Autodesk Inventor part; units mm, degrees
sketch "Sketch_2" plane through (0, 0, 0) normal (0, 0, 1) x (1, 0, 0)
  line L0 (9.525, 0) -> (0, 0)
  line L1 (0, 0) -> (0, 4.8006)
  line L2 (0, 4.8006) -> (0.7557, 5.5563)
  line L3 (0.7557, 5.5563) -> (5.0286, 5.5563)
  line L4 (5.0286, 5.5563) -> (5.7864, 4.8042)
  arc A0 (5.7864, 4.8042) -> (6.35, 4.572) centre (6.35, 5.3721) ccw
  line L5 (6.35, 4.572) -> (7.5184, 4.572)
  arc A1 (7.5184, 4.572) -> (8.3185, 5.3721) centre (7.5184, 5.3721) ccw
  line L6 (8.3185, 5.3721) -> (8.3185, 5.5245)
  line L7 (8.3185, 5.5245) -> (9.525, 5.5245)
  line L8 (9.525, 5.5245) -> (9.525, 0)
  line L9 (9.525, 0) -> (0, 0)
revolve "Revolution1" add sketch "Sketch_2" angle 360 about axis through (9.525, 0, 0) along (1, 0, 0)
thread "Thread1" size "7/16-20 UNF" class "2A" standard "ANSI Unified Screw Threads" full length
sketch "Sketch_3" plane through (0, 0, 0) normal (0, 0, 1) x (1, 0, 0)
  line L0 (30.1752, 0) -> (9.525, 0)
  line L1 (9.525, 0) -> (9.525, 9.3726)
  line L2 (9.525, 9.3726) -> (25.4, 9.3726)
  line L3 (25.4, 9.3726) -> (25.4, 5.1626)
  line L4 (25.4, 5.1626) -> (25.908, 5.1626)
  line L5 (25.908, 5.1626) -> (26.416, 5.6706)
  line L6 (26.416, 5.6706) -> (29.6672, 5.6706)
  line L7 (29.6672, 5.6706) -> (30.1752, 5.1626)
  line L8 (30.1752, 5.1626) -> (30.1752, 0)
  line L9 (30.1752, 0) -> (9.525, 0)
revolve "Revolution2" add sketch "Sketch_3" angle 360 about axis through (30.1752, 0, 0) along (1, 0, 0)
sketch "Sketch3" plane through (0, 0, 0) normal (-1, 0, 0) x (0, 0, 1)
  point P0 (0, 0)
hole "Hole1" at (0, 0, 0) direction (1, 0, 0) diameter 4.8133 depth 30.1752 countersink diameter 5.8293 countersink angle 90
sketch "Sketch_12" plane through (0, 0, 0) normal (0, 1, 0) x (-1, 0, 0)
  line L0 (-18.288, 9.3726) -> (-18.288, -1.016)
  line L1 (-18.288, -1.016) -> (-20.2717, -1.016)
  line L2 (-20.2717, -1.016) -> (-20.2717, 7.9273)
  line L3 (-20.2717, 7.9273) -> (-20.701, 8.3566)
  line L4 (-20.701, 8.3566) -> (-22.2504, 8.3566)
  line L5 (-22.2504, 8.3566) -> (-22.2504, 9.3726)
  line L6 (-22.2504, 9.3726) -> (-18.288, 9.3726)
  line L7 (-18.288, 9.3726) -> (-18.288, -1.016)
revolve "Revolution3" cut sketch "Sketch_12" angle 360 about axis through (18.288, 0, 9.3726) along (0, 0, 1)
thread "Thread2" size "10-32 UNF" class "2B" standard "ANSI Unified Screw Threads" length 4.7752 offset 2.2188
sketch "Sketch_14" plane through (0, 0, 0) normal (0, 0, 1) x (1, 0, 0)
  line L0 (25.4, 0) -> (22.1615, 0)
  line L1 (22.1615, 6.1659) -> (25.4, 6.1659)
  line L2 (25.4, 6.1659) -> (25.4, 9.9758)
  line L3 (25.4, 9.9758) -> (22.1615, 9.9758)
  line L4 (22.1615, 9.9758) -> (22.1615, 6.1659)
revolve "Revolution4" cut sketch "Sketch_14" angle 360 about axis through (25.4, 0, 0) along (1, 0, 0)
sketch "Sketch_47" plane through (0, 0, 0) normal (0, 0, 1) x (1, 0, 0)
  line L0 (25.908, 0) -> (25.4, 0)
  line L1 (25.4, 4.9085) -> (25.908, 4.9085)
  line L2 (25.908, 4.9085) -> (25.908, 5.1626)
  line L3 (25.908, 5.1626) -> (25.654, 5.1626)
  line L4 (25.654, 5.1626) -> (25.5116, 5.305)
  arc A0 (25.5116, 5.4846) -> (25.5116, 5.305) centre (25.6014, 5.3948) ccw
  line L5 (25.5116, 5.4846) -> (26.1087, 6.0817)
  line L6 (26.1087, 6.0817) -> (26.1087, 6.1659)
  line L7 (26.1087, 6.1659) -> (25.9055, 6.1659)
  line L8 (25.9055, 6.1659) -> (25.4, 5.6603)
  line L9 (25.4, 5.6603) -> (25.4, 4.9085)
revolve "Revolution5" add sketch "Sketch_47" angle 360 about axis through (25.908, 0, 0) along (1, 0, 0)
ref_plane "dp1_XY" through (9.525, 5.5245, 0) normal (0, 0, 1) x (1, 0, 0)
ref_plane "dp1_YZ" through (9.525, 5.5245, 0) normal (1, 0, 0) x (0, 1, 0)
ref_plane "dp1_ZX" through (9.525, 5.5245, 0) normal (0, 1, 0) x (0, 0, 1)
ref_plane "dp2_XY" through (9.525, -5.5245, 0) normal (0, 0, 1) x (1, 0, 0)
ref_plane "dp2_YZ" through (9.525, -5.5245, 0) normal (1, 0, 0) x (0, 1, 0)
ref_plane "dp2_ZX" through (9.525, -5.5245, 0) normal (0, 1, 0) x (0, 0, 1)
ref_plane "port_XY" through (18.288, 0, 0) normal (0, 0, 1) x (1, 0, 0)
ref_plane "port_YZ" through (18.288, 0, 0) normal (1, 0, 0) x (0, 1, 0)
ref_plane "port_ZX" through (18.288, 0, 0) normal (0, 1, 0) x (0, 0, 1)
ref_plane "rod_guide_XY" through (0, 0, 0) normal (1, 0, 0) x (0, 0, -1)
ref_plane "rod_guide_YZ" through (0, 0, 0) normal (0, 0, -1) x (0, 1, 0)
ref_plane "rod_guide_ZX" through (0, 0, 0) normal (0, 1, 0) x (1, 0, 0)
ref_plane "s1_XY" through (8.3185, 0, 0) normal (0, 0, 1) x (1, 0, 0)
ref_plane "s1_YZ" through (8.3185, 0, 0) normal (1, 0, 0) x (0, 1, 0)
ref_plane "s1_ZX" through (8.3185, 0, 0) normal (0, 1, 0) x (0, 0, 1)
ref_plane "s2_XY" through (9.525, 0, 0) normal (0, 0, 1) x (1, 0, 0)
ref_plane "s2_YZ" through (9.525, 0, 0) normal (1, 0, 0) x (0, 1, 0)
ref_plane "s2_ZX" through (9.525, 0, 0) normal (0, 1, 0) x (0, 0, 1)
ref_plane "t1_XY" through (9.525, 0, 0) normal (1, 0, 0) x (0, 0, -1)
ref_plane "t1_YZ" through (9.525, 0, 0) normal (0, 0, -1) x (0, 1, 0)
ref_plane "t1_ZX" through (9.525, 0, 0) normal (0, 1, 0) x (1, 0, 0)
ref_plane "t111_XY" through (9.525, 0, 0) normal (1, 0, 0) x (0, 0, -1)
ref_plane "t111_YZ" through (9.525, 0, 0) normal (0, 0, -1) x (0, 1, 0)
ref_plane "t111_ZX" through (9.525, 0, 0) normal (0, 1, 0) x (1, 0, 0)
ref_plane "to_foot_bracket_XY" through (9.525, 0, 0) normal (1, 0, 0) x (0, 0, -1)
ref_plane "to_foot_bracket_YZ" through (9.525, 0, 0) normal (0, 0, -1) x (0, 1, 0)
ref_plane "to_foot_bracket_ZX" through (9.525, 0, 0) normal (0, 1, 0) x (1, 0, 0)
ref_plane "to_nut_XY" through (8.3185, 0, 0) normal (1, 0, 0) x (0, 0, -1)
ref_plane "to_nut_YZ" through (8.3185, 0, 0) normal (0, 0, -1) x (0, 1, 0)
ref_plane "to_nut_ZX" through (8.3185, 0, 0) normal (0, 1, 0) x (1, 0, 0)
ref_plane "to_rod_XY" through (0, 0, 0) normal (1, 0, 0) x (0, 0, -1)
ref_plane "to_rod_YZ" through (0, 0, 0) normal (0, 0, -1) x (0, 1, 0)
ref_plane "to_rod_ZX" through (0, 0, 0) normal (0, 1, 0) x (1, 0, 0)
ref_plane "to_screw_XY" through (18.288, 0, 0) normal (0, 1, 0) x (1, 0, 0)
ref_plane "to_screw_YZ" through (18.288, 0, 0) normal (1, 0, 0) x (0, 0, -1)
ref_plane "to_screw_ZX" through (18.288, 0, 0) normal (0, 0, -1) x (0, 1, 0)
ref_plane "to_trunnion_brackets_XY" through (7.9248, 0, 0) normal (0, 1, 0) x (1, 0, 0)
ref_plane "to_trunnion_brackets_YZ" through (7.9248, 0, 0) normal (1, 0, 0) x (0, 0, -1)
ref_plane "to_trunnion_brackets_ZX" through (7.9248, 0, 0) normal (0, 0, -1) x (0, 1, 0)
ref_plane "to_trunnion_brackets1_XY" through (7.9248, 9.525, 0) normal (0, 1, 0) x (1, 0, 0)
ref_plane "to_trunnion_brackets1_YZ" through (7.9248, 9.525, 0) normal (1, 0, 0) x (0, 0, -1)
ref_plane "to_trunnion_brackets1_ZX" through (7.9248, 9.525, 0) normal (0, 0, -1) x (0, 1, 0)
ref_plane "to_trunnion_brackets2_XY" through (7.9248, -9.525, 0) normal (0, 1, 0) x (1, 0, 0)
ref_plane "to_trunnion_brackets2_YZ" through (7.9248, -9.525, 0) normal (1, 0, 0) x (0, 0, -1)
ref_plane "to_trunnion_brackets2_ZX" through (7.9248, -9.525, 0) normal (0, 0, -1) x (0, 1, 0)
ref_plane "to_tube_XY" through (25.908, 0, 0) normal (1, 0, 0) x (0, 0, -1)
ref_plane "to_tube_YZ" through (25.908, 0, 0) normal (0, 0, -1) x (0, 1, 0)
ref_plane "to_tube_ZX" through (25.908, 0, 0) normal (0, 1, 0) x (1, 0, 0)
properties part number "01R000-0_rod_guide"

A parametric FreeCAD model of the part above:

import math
import FreeCAD as App
import Part
import Sketcher

V = App.Vector
Q = App.Units.Quantity

doc = App.newDocument("Part")
body = doc.addObject("PartDesign::Body", "Body")

# Sketch on XY plane
sketch1 = doc.addObject("Sketcher::SketchObject", "Sketch")
body.addObject(sketch1)
sketch1.AttachmentSupport = (doc.XY_Plane, [""])
sketch1.MapMode = "FlatFace"
sketch1.addGeometry(Part.LineSegment(V(0, 0, 0), V(9.53, 0, 0)), False)
sketch1.addGeometry(Part.LineSegment(V(9.53, 0, 0), V(9.53, 5.52, 0)), False)
sketch1.addGeometry(Part.LineSegment(V(9.53, 5.52, 0), V(8.32, 5.52, 0)), False)
sketch1.addGeometry(Part.LineSegment(V(8.32, 5.52, 0), V(8.32, 5.37, 0)), False)
sketch1.addGeometry(Part.ArcOfCircle(Part.Circle(V(7.52, 5.37, 0), V(0, 0, 1), 0.8), math.radians(-90), math.radians(0)), False)
sketch1.addGeometry(Part.LineSegment(V(7.52, 4.57, 0), V(6.35, 4.57, 0)), False)
sketch1.addGeometry(Part.ArcOfCircle(Part.Circle(V(6.35, 5.37, 0), V(0, 0, 1), 0.8), math.radians(-135), math.radians(-90)), False)
sketch1.addGeometry(Part.LineSegment(V(5.79, 4.8, 0), V(5.03, 5.56, 0)), False)
sketch1.addGeometry(Part.LineSegment(V(5.03, 5.56, 0), V(0.76, 5.56, 0)), False)
sketch1.addGeometry(Part.LineSegment(V(0.76, 5.56, 0), V(0, 4.8, 0)), False)
sketch1.addGeometry(Part.LineSegment(V(0, 4.8, 0), V(0, 0, 0)), False)
sketch1.addConstraint(Sketcher.Constraint("Coincident", 0, 2, 1, 1))
sketch1.addConstraint(Sketcher.Constraint("Coincident", 1, 2, 2, 1))
sketch1.addConstraint(Sketcher.Constraint("Coincident", 2, 2, 3, 1))
sketch1.addConstraint(Sketcher.Constraint("Tangent", 3, 2, 4, 2))
sketch1.addConstraint(Sketcher.Constraint("Tangent", 4, 1, 5, 1))
sketch1.addConstraint(Sketcher.Constraint("Tangent", 5, 2, 6, 2))
sketch1.addConstraint(Sketcher.Constraint("Tangent", 6, 1, 7, 1))
sketch1.addConstraint(Sketcher.Constraint("Coincident", 7, 2, 8, 1))
sketch1.addConstraint(Sketcher.Constraint("Coincident", 8, 2, 9, 1))
sketch1.addConstraint(Sketcher.Constraint("Coincident", 9, 2, 10, 1))
sketch1.addConstraint(Sketcher.Constraint("Coincident", 10, 2, 0, 1))
sketch1.addConstraint(Sketcher.Constraint("Horizontal", 0))
sketch1.addConstraint(Sketcher.Constraint("Vertical", 1))
sketch1.addConstraint(Sketcher.Constraint("Horizontal", 2))
sketch1.addConstraint(Sketcher.Constraint("Vertical", 3))
sketch1.addConstraint(Sketcher.Constraint("Horizontal", 5))
sketch1.addConstraint(Sketcher.Constraint("Horizontal", 8))
sketch1.addConstraint(Sketcher.Constraint("Vertical", 10))
sketch1.addConstraint(Sketcher.Constraint("Coincident", 10, 2, -1, 1))
sketch1.addConstraint(Sketcher.Constraint("Equal", 4, 6))
sketch1.addConstraint(Sketcher.Constraint("Angle", 9, Q("-135 deg")))
sketch1.addConstraint(Sketcher.Constraint("Radius", 4, Q("0.0315 in")))
sketch1.addConstraint(Sketcher.Constraint("DistanceX", 0, 1, 0, 2, Q("0.375 in")))
sketch1.addConstraint(Sketcher.Constraint("DistanceX", 5, 2, 5, 1, Q("0.046 in")))
sketch1.addConstraint(Sketcher.Constraint("DistanceY", 3, 2, 3, 1, Q("0.006 in")))
sketch1.addConstraint(Sketcher.Constraint("DistanceY", 10, 2, 10, 1, Q("0.189 in")))
sketch1.addConstraint(Sketcher.Constraint("DistanceX", -1, 1, 6, 3, Q("0.25 in")))
sketch1.addConstraint(Sketcher.Constraint("DistanceY", -1, 1, 4, 1, Q("0.18 in")))
sketch1.addConstraint(Sketcher.Constraint("DistanceY", -1, 1, 7, 2, Q("0.218752 in")))
sketch1.addConstraint(Sketcher.Constraint("DistanceX", 8, 2, 8, 1, Q("4.273 mm")))
revolution = doc.addObject("PartDesign::Revolution", "Revolution")
body.addObject(revolution)
revolution.Profile = sketch1
revolution.ReferenceAxis = (sketch1, ["H_Axis"])
revolution.Angle = 360

# Sketch on XY plane
sketch2 = doc.addObject("Sketcher::SketchObject", "Sketch001")
body.addObject(sketch2)
sketch2.AttachmentSupport = (doc.XY_Plane, [""])
sketch2.MapMode = "FlatFace"
sketch2.addGeometry(Part.LineSegment(V(9.5, 0, 0), V(30.2, 0, 0)), False)
sketch2.addGeometry(Part.LineSegment(V(30.2, 0, 0), V(30.2, 5.2, 0)), False)
sketch2.addGeometry(Part.LineSegment(V(30.2, 5.2, 0), V(29.7, 5.7, 0)), False)
sketch2.addGeometry(Part.LineSegment(V(29.7, 5.7, 0), V(26.4, 5.7, 0)), False)
sketch2.addGeometry(Part.LineSegment(V(26.4, 5.7, 0), V(25.9, 5.2, 0)), False)
sketch2.addGeometry(Part.LineSegment(V(25.9, 5.2, 0), V(25.4, 5.2, 0)), False)
sketch2.addGeometry(Part.LineSegment(V(25.4, 5.2, 0), V(25.4, 9.4, 0)), False)
sketch2.addGeometry(Part.LineSegment(V(25.4, 9.4, 0), V(9.5, 9.4, 0)), False)
sketch2.addGeometry(Part.LineSegment(V(9.5, 9.4, 0), V(9.5, 0, 0)), False)
sketch2.addConstraint(Sketcher.Constraint("Coincident", 0, 2, 1, 1))
sketch2.addConstraint(Sketcher.Constraint("Coincident", 1, 2, 2, 1))
sketch2.addConstraint(Sketcher.Constraint("Coincident", 2, 2, 3, 1))
sketch2.addConstraint(Sketcher.Constraint("Coincident", 3, 2, 4, 1))
sketch2.addConstraint(Sketcher.Constraint("Coincident", 4, 2, 5, 1))
sketch2.addConstraint(Sketcher.Constraint("Coincident", 5, 2, 6, 1))
sketch2.addConstraint(Sketcher.Constraint("Coincident", 6, 2, 7, 1))
sketch2.addConstraint(Sketcher.Constraint("Coincident", 7, 2, 8, 1))
sketch2.addConstraint(Sketcher.Constraint("Coincident", 8, 2, 0, 1))
sketch2.addConstraint(Sketcher.Constraint("Horizontal", 0))
sketch2.addConstraint(Sketcher.Constraint("Vertical", 1))
sketch2.addConstraint(Sketcher.Constraint("Horizontal", 3))
sketch2.addConstraint(Sketcher.Constraint("Horizontal", 5))
sketch2.addConstraint(Sketcher.Constraint("Vertical", 6))
sketch2.addConstraint(Sketcher.Constraint("Horizontal", 7))
sketch2.addConstraint(Sketcher.Constraint("Vertical", 8))
sketch2.addConstraint(Sketcher.Constraint("PointOnObject", 0, 2, -1))
sketch2.addConstraint(Sketcher.Constraint("Perpendicular", 2, 4))
sketch2.addConstraint(Sketcher.Constraint("Horizontal", 1, 2, 4, 2))
sketch2.addConstraint(Sketcher.Constraint("Equal", 2, 4))
sketch2.addConstraint(Sketcher.Constraint("DistanceX", -1, 1, 5, 2, Q("1 in")))
sketch2.addConstraint(Sketcher.Constraint("DistanceX", 5, 2, 5, 1, Q("0.02 in")))
sketch2.addConstraint(Sketcher.Constraint("DistanceX", 0, 1, 0, 2, Q("0.813 in")))
sketch2.addConstraint(Sketcher.Constraint("DistanceX", 3, 2, 3, 1, Q("0.128 in")))
sketch2.addConstraint(Sketcher.Constraint("DistanceX", 7, 2, 7, 1, Q("0.625 in")))
sketch2.addConstraint(Sketcher.Constraint("DistanceY", 8, 2, 8, 1, Q("0.369 in")))
sketch2.addConstraint(Sketcher.Constraint("DistanceY", 1, 1, 1, 2, Q("5.1626 mm")))
revolution2 = doc.addObject("PartDesign::Revolution", "Revolution001")
body.addObject(revolution2)
revolution2.Profile = sketch2
revolution2.ReferenceAxis = (sketch2, ["H_Axis"])
revolution2.Angle = 360

# Sketch on YZ plane
sketch3 = doc.addObject("Sketcher::SketchObject", "Sketch002")
body.addObject(sketch3)
sketch3.AttachmentSupport = (doc.YZ_Plane, [""])
sketch3.MapMode = "FlatFace"
sketch3.addGeometry(Part.Circle(V(0, 0, 0), V(0, 0, 1), 2.4), False)
sketch3.addConstraint(Sketcher.Constraint("Coincident", 0, 3, -1, 1))
sketch3.addConstraint(Sketcher.Constraint("Diameter", 0, Q("0.1895 in")))
doc.recompute()
hole = doc.addObject("PartDesign::Hole", "Hole")
body.addObject(hole)
hole.Profile = sketch3
hole.ThreadType = "None"
hole.Diameter = Q("0.1895 in")
hole.DepthType = "Dimension"
hole.Depth = Q("1.188 in")
hole.DrillPoint = "Flat"
hole.HoleCutType = "Countersink"
hole.HoleCutDiameter = Q("0.2295 in")
hole.HoleCutCountersinkAngle = 90
hole.Reversed = True

# Sketch on XZ plane
sketch4 = doc.addObject("Sketcher::SketchObject", "Sketch003")
body.addObject(sketch4)
sketch4.AttachmentSupport = (doc.XZ_Plane, [""])
sketch4.MapMode = "FlatFace"
sketch4.addGeometry(Part.LineSegment(V(18.3, -1, 0), V(18.3, 9.4, 0)), False)
sketch4.addGeometry(Part.LineSegment(V(18.3, 9.4, 0), V(22.3, 9.4, 0)), False)
sketch4.addGeometry(Part.LineSegment(V(22.3, 9.4, 0), V(22.3, 8.4, 0)), False)
sketch4.addGeometry(Part.LineSegment(V(22.3, 8.4, 0), V(20.7, 8.4, 0)), False)
sketch4.addGeometry(Part.LineSegment(V(20.7, 8.4, 0), V(20.3, 7.9, 0)), False)
sketch4.addGeometry(Part.LineSegment(V(20.3, 7.9, 0), V(20.3, -1, 0)), False)
sketch4.addGeometry(Part.LineSegment(V(20.3, -1, 0), V(18.3, -1, 0)), False)
sketch4.addGeometry(Part.LineSegment(V(18.3, -1, 0), V(18.3, 9.4, 0)), True)  # axis
sketch4.addConstraint(Sketcher.Constraint("Coincident", 0, 2, 1, 1))
sketch4.addConstraint(Sketcher.Constraint("Coincident", 1, 2, 2, 1))
sketch4.addConstraint(Sketcher.Constraint("Coincident", 2, 2, 3, 1))
sketch4.addConstraint(Sketcher.Constraint("Coincident", 3, 2, 4, 1))
sketch4.addConstraint(Sketcher.Constraint("Coincident", 4, 2, 5, 1))
sketch4.addConstraint(Sketcher.Constraint("Coincident", 5, 2, 6, 1))
sketch4.addConstraint(Sketcher.Constraint("Coincident", 6, 2, 0, 1))
sketch4.addConstraint(Sketcher.Constraint("Vertical", 0))
sketch4.addConstraint(Sketcher.Constraint("Horizontal", 1))
sketch4.addConstraint(Sketcher.Constraint("Vertical", 2))
sketch4.addConstraint(Sketcher.Constraint("Horizontal", 3))
sketch4.addConstraint(Sketcher.Constraint("Vertical", 5))
sketch4.addConstraint(Sketcher.Constraint("Horizontal", 6))
sketch4.addConstraint(Sketcher.Constraint("Vertical", 7))
sketch4.addConstraint(Sketcher.Constraint("Coincident", 7, 1, 6, 2))
sketch4.addConstraint(Sketcher.Constraint("Horizontal", 1, 2, 7, 2))
sketch4.addConstraint(Sketcher.Constraint("Angle", 4, Q("-135 deg")))
sketch4.addConstraint(Sketcher.Constraint("DistanceY", 2, 2, 2, 1, Q("0.04 in")))
sketch4.addConstraint(Sketcher.Constraint("DistanceX", 1, 1, 1, 2, Q("0.156 in")))
sketch4.addConstraint(Sketcher.Constraint("DistanceX", 3, 2, 3, 1, Q("0.061 in")))
sketch4.addConstraint(Sketcher.Constraint("DistanceY", 0, 1, 0, 2, Q("0.409 in")))
sketch4.addConstraint(Sketcher.Constraint("DistanceX", -1, 1, 0, 2, Q("0.72 in")))
sketch4.addConstraint(Sketcher.Constraint("DistanceY", 5, 2, -1, 1, Q("0.04 in")))
sketch4.addConstraint(Sketcher.Constraint("DistanceX", 6, 2, 6, 1, Q("0.0781 in")))
groove = doc.addObject("PartDesign::Groove", "Groove")
body.addObject(groove)
groove.Profile = sketch4
groove.ReferenceAxis = (sketch4, ["Axis0"])
groove.Angle = 360

# Sketch on XY plane
sketch5 = doc.addObject("Sketcher::SketchObject", "Sketch004")
body.addObject(sketch5)
sketch5.AttachmentSupport = (doc.XY_Plane, [""])
sketch5.MapMode = "FlatFace"
sketch5.addGeometry(Part.LineSegment(V(22.2, 10, 0), V(22.2, 6.2, 0)), False)
sketch5.addGeometry(Part.LineSegment(V(22.2, 6.2, 0), V(25.4, 6.2, 0)), False)
sketch5.addGeometry(Part.LineSegment(V(25.4, 6.2, 0), V(25.4, 10, 0)), False)
sketch5.addGeometry(Part.LineSegment(V(25.4, 10, 0), V(22.2, 10, 0)), False)
sketch5.addConstraint(Sketcher.Constraint("Coincident", 0, 2, 1, 1))
sketch5.addConstraint(Sketcher.Constraint("Coincident", 1, 2, 2, 1))
sketch5.addConstraint(Sketcher.Constraint("Coincident", 2, 2, 3, 1))
sketch5.addConstraint(Sketcher.Constraint("Coincident", 3, 2, 0, 1))
sketch5.addConstraint(Sketcher.Constraint("Vertical", 0))
sketch5.addConstraint(Sketcher.Constraint("Horizontal", 1))
sketch5.addConstraint(Sketcher.Constraint("Vertical", 2))
sketch5.addConstraint(Sketcher.Constraint("Horizontal", 3))
sketch5.addConstraint(Sketcher.Constraint("DistanceX", -1, 1, 1, 2, Q("1 in")))
sketch5.addConstraint(Sketcher.Constraint("DistanceY", 0, 2, 0, 1, Q("0.15 in")))
sketch5.addConstraint(Sketcher.Constraint("DistanceX", 1, 1, 1, 2, Q("0.1275 in")))
sketch5.addConstraint(Sketcher.Constraint("DistanceY", -1, 1, 0, 2, Q("6.166 mm")))
groove2 = doc.addObject("PartDesign::Groove", "Groove001")
body.addObject(groove2)
groove2.Profile = sketch5
groove2.ReferenceAxis = (sketch5, ["H_Axis"])
groove2.Angle = 360

# Sketch on XY plane
sketch6 = doc.addObject("Sketcher::SketchObject", "Sketch005")
body.addObject(sketch6)
sketch6.AttachmentSupport = (doc.XY_Plane, [""])
sketch6.MapMode = "FlatFace"
sketch6.addGeometry(Part.LineSegment(V(25.4, 5.66, 0), V(25.4, 4.91, 0)), False)
sketch6.addGeometry(Part.LineSegment(V(25.4, 4.91, 0), V(25.91, 4.91, 0)), False)
sketch6.addGeometry(Part.LineSegment(V(25.91, 4.91, 0), V(25.91, 5.16, 0)), False)
sketch6.addGeometry(Part.LineSegment(V(25.91, 5.16, 0), V(25.65, 5.16, 0)), False)
sketch6.addGeometry(Part.LineSegment(V(25.65, 5.16, 0), V(25.51, 5.3, 0)), False)
sketch6.addGeometry(Part.ArcOfCircle(Part.Circle(V(25.6, 5.39, 0), V(0, 0, 1), 0.13), math.radians(135), math.radians(225)), False)
sketch6.addGeometry(Part.LineSegment(V(25.51, 5.48, 0), V(26.11, 6.08, 0)), False)
sketch6.addGeometry(Part.LineSegment(V(26.11, 6.08, 0), V(26.11, 6.17, 0)), False)
sketch6.addGeometry(Part.LineSegment(V(26.11, 6.17, 0), V(25.91, 6.17, 0)), False)
sketch6.addGeometry(Part.LineSegment(V(25.91, 6.17, 0), V(25.4, 5.66, 0)), False)
sketch6.addConstraint(Sketcher.Constraint("Coincident", 0, 2, 1, 1))
sketch6.addConstraint(Sketcher.Constraint("Coincident", 1, 2, 2, 1))
sketch6.addConstraint(Sketcher.Constraint("Coincident", 2, 2, 3, 1))
sketch6.addConstraint(Sketcher.Constraint("Coincident", 3, 2, 4, 1))
sketch6.addConstraint(Sketcher.Constraint("Tangent", 4, 2, 5, 2))
sketch6.addConstraint(Sketcher.Constraint("Tangent", 5, 1, 6, 1))
sketch6.addConstraint(Sketcher.Constraint("Coincident", 6, 2, 7, 1))
sketch6.addConstraint(Sketcher.Constraint("Coincident", 7, 2, 8, 1))
sketch6.addConstraint(Sketcher.Constraint("Coincident", 8, 2, 9, 1))
sketch6.addConstraint(Sketcher.Constraint("Coincident", 9, 2, 0, 1))
sketch6.addConstraint(Sketcher.Constraint("Vertical", 0))
sketch6.addConstraint(Sketcher.Constraint("Horizontal", 1))
sketch6.addConstraint(Sketcher.Constraint("Vertical", 2))
sketch6.addConstraint(Sketcher.Constraint("Horizontal", 3))
sketch6.addConstraint(Sketcher.Constraint("Vertical", 7))
sketch6.addConstraint(Sketcher.Constraint("Horizontal", 8))
sketch6.addConstraint(Sketcher.Constraint("Perpendicular", 4, 6))
sketch6.addConstraint(Sketcher.Constraint("Parallel", 6, 9))
sketch6.addConstraint(Sketcher.Constraint("Vertical", 4, 2, 5, 1))
sketch6.addConstraint(Sketcher.Constraint("Equal", 3, 2))
sketch6.addConstraint(Sketcher.Constraint("DistanceX", -1, 1, 0, 2, Q("1 in")))
sketch6.addConstraint(Sketcher.Constraint("Radius", 5, Q("0.005 in")))
sketch6.addConstraint(Sketcher.Constraint("DistanceX", 1, 1, 1, 2, Q("0.02 in")))
sketch6.addConstraint(Sketcher.Constraint("DistanceX", 3, 2, 3, 1, Q("0.01 in")))
sketch6.addConstraint(Sketcher.Constraint("DistanceX", 8, 2, 8, 1, Q("0.008 in")))
sketch6.addConstraint(Sketcher.Constraint("DistanceY", 0, 2, 0, 1, Q("0.0296 in")))
sketch6.addConstraint(Sketcher.Constraint("DistanceY", 4, 2, 9, 2, Q("0.014 in")))
sketch6.addConstraint(Sketcher.Constraint("DistanceY", -1, 1, 5, 3, Q("0.2124 in")))
sketch6.addConstraint(Sketcher.Constraint("DistanceX", -1, 1, 6, 2, Q("1.0279 in")))
revolution3 = doc.addObject("PartDesign::Revolution", "Revolution002")
body.addObject(revolution3)
revolution3.Profile = sketch6
revolution3.ReferenceAxis = (sketch6, ["H_Axis"])
revolution3.Angle = 360

doc.recompute()
